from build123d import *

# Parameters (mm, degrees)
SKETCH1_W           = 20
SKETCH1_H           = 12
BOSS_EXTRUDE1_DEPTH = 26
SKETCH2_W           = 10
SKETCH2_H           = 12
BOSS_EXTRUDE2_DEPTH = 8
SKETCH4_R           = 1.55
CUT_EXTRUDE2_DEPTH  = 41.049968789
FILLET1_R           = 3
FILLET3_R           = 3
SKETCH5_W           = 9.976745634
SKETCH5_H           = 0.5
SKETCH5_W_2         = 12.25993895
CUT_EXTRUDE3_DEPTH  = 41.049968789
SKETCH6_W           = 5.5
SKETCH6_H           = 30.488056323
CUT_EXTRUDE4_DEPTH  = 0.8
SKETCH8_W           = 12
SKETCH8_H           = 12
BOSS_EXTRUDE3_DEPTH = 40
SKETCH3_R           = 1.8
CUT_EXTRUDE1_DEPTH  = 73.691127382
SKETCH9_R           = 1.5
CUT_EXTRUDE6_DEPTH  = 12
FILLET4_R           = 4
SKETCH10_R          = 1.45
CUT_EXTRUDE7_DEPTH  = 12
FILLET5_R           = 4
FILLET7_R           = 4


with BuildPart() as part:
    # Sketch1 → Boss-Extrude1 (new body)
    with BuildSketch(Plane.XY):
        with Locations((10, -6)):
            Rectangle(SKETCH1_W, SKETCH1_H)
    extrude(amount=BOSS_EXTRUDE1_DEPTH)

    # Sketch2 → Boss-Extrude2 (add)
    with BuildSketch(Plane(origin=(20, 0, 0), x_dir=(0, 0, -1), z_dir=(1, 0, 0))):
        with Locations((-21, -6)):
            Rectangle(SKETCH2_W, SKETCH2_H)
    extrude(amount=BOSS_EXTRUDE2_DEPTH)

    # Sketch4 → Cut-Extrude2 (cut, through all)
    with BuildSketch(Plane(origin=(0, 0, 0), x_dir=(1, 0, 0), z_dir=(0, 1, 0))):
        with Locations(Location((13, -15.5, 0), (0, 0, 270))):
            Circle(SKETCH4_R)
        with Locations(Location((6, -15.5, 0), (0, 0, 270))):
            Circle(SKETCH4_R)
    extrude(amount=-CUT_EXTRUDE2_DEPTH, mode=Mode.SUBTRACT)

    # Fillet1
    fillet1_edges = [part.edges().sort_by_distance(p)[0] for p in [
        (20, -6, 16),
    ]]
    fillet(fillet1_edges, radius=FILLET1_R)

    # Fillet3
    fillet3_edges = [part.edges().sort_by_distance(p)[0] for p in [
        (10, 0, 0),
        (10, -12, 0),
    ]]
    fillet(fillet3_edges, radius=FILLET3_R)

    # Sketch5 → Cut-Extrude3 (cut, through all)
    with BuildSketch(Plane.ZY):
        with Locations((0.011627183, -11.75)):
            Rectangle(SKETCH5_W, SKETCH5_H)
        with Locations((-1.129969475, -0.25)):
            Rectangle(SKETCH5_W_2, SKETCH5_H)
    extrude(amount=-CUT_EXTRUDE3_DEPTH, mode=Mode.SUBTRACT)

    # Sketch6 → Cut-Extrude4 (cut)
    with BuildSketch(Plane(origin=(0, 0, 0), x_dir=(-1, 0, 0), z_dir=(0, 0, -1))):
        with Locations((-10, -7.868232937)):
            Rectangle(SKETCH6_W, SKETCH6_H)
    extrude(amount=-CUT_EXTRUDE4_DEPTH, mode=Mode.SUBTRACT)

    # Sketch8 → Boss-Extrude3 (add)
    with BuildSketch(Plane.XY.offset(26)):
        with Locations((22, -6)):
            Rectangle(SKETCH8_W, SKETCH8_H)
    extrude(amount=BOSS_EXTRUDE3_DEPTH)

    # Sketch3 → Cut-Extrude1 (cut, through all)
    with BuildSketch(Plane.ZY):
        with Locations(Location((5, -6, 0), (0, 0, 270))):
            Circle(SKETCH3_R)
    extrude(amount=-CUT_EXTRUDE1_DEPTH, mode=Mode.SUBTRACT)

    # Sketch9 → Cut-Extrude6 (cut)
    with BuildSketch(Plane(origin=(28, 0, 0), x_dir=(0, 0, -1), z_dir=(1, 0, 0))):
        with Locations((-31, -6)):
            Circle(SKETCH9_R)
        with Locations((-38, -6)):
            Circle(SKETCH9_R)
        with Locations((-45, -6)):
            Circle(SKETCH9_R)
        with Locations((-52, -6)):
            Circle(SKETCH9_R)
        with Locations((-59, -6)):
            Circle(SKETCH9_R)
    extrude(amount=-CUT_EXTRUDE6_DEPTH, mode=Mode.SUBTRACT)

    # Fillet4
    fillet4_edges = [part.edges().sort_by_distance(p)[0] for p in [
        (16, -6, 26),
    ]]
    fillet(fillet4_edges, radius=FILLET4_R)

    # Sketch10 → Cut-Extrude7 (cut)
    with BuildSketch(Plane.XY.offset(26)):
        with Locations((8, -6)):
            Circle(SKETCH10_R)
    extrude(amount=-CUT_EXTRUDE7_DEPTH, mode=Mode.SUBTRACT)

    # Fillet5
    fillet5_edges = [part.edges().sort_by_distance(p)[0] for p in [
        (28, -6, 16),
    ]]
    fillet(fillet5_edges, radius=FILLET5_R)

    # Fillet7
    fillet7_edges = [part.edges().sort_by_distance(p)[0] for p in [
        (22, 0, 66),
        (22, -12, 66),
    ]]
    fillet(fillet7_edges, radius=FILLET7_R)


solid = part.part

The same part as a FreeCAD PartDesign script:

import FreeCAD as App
import Part
import Sketcher

V = App.Vector
Q = App.Units.Quantity


def edges_at(feature, points):
    """Names of the edges that pass closest to the given points."""
    edges = feature.Shape.Edges
    near = lambda p: min(range(len(edges)), key=lambda i: edges[i].distToShape(Part.Vertex(*p))[0])
    return sorted({f"Edge{near(p) + 1}" for p in points})


def add_polygon(sketch, points):
    """Adds a closed chain of lines whose ends are joined by coincident constraints."""
    first, n = sketch.GeometryCount, len(points)
    for a, b in zip(points, points[1:] + points[:1]):
        sketch.addGeometry(Part.LineSegment(App.Vector(*a, 0), App.Vector(*b, 0)), False)
    for i in range(n):
        sketch.addConstraint(Sketcher.Constraint("Coincident", first + i, 2, first + (i + 1) % n, 1))

doc = App.newDocument("Part")
body = doc.addObject("PartDesign::Body", "Body")

sketch1 = body.newObject("Sketcher::SketchObject", "Sketch")
sketch1.AttachmentSupport = (doc.getObject("XY_Plane"), [""])
sketch1.MapMode = "FlatFace"
add_polygon(sketch1, [(0, 0), (0, -12), (20, -12), (20, 0)])
sketch1.addConstraint(Sketcher.Constraint("Vertical", 0))
sketch1.addConstraint(Sketcher.Constraint("Horizontal", 1))
sketch1.addConstraint(Sketcher.Constraint("Vertical", 2))
sketch1.addConstraint(Sketcher.Constraint("Horizontal", 3))
sketch1.addConstraint(Sketcher.Constraint("Coincident", 3, 2, -1, 1))
sketch1.addConstraint(Sketcher.Constraint("DistanceX", 1, 1, 1, 2, Q("20 mm")))
sketch1.addConstraint(Sketcher.Constraint("DistanceY", 0, 2, 0, 1, Q("12 mm")))
pad1 = body.newObject("PartDesign::Pad", "Pad")
pad1.Profile = sketch1
pad1.Length = 26

sketch2 = body.newObject("Sketcher::SketchObject", "Sketch001")
sketch2.AttachmentSupport = (doc.getObject("YZ_Plane"), [""])
sketch2.MapMode = "FlatFace"
sketch2.AttachmentOffset = App.Placement(V(0, 0, 20), App.Rotation())
add_polygon(sketch2, [(0, 26), (-12, 26), (-12, 16), (0, 16)])
sketch2.addConstraint(Sketcher.Constraint("Horizontal", 0))
sketch2.addConstraint(Sketcher.Constraint("Vertical", 1))
sketch2.addConstraint(Sketcher.Constraint("Horizontal", 2))
sketch2.addConstraint(Sketcher.Constraint("Vertical", 3))
sketch2.addConstraint(Sketcher.Constraint("PointOnObject", 2, 2, -2))
sketch2.addConstraint(Sketcher.Constraint("DistanceX", 0, 2, 0, 1, Q("12 mm")))
sketch2.addConstraint(Sketcher.Constraint("DistanceY", 1, 2, 1, 1, Q("10 mm")))
sketch2.addConstraint(Sketcher.Constraint("DistanceY", -1, 1, 0, 2, Q("26 mm")))
pad2 = body.newObject("PartDesign::Pad", "Pad001")
pad2.Profile = sketch2
pad2.Length = 8

sketch3 = body.newObject("Sketcher::SketchObject", "Sketch002")
sketch3.AttachmentSupport = (doc.getObject("XZ_Plane"), [""])
sketch3.MapMode = "FlatFace"
sketch3.addGeometry(Part.Circle(V(13, 15.5, 0), V(0, 0, 1), 1.55), False)
sketch3.addGeometry(Part.Circle(V(6, 15.5, 0), V(0, 0, 1), 1.55), False)
sketch3.addConstraint(Sketcher.Constraint("Equal", 0, 1))
sketch3.addConstraint(Sketcher.Constraint("Horizontal", 0, 3, 1, 3))
sketch3.addConstraint(Sketcher.Constraint("Diameter", 0, Q("3.1 mm")))
sketch3.addConstraint(Sketcher.Constraint("DistanceX", -1, 1, 0, 3, Q("13 mm")))
sketch3.addConstraint(Sketcher.Constraint("DistanceX", -1, 1, 1, 3, Q("6 mm")))
sketch3.addConstraint(Sketcher.Constraint("DistanceY", -1, 1, 0, 3, Q("15.5 mm")))
pocket1 = body.newObject("PartDesign::Pocket", "Pocket")
pocket1.Profile = sketch3
pocket1.Type = "ThroughAll"
pocket1.Reversed = True
doc.recompute()

fillet = body.newObject("PartDesign::Fillet", "Fillet")
fillet.Base = (pocket1, edges_at(pocket1, [(20, -6, 16)]))
fillet.Radius = 3
doc.recompute()

fillet2 = body.newObject("PartDesign::Fillet", "Fillet001")
fillet2.Base = (fillet, edges_at(fillet, [(10, 0, 0), (10, -12, 0)]))
fillet2.Radius = 3

sketch4 = body.newObject("Sketcher::SketchObject", "Sketch003")
sketch4.AttachmentSupport = (doc.getObject("YZ_Plane"), [""])
sketch4.MapMode = "FlatFace"
add_polygon(sketch4, [(-11.5, -4.976746), (-12, -4.976746), (-12, 5), (-11.5, 5)])
add_polygon(sketch4, [(0, -7.259939), (-0.5, -7.259939), (-0.5, 5), (0, 5)])
sketch4.addConstraint(Sketcher.Constraint("Horizontal", 0))
sketch4.addConstraint(Sketcher.Constraint("Vertical", 1))
sketch4.addConstraint(Sketcher.Constraint("Horizontal", 2))
sketch4.addConstraint(Sketcher.Constraint("Vertical", 3))
sketch4.addConstraint(Sketcher.Constraint("Horizontal", 4))
sketch4.addConstraint(Sketcher.Constraint("Vertical", 5))
sketch4.addConstraint(Sketcher.Constraint("Horizontal", 6))
sketch4.addConstraint(Sketcher.Constraint("Vertical", 7))
sketch4.addConstraint(Sketcher.Constraint("PointOnObject", 6, 2, -2))
sketch4.addConstraint(Sketcher.Constraint("Horizontal", 2, 2, 5, 2))
sketch4.addConstraint(Sketcher.Constraint("Equal", 2, 4))
sketch4.addConstraint(Sketcher.Constraint("DistanceX", 0, 2, 0, 1, Q("0.5 mm")))
sketch4.addConstraint(Sketcher.Constraint("DistanceX", 0, 2, -1, 1, Q("12 mm")))
sketch4.addConstraint(Sketcher.Constraint("DistanceY", -1, 1, 1, 2, Q("5 mm")))
sketch4.addConstraint(Sketcher.Constraint("DistanceY", 5, 1, 5, 2, Q("12.259939 mm")))
sketch4.addConstraint(Sketcher.Constraint("DistanceY", 1, 1, 1, 2, Q("9.976746 mm")))
pocket2 = body.newObject("PartDesign::Pocket", "Pocket001")
pocket2.Profile = sketch4
pocket2.Type = "ThroughAll"
pocket2.Reversed = True

sketch5 = body.newObject("Sketcher::SketchObject", "Sketch004")
sketch5.AttachmentSupport = (doc.getObject("XY_Plane"), [""])
sketch5.MapMode = "FlatFace"
add_polygon(sketch5, [(12.75, 7.375795), (12.75, -23.112261), (7.25, -23.112261), (7.25, 7.375795)])
sketch5.addConstraint(Sketcher.Constraint("Vertical", 0))
sketch5.addConstraint(Sketcher.Constraint("Horizontal", 1))
sketch5.addConstraint(Sketcher.Constraint("Vertical", 2))
sketch5.addConstraint(Sketcher.Constraint("Horizontal", 3))
sketch5.addConstraint(Sketcher.Constraint("DistanceX", 1, 2, 1, 1, Q("5.5 mm")))
sketch5.addConstraint(Sketcher.Constraint("DistanceX", -1, 1, 0, 2, Q("12.75 mm")))
sketch5.addConstraint(Sketcher.Constraint("DistanceY", 0, 2, 0, 1, Q("30.488056 mm")))
sketch5.addConstraint(Sketcher.Constraint("DistanceY", 0, 2, -1, 1, Q("23.112261 mm")))
pocket3 = body.newObject("PartDesign::Pocket", "Pocket002")
pocket3.Profile = sketch5
pocket3.Length = 0.8
pocket3.Reversed = True

sketch6 = body.newObject("Sketcher::SketchObject", "Sketch005")
sketch6.AttachmentSupport = (doc.getObject("XY_Plane"), [""])
sketch6.MapMode = "FlatFace"
sketch6.AttachmentOffset = App.Placement(V(0, 0, 26), App.Rotation())
add_polygon(sketch6, [(16, 0), (16, -12), (28, -12), (28, 0)])
sketch6.addConstraint(Sketcher.Constraint("Vertical", 0))
sketch6.addConstraint(Sketcher.Constraint("Horizontal", 1))
sketch6.addConstraint(Sketcher.Constraint("Vertical", 2))
sketch6.addConstraint(Sketcher.Constraint("Horizontal", 3))
sketch6.addConstraint(Sketcher.Constraint("PointOnObject", 2, 2, -1))
sketch6.addConstraint(Sketcher.Constraint("Equal", 3, 0))
sketch6.addConstraint(Sketcher.Constraint("DistanceX", 1, 1, 1, 2, Q("12 mm")))
sketch6.addConstraint(Sketcher.Constraint("DistanceX", -1, 1, 0, 2, Q("16 mm")))
pad3 = body.newObject("PartDesign::Pad", "Pad002")
pad3.Profile = sketch6
pad3.Length = 40

sketch7 = body.newObject("Sketcher::SketchObject", "Sketch006")
sketch7.AttachmentSupport = (doc.getObject("YZ_Plane"), [""])
sketch7.MapMode = "FlatFace"
sketch7.addGeometry(Part.Circle(V(-6, 5, 0), V(0, 0, 1), 1.8), False)
sketch7.addConstraint(Sketcher.Constraint("Diameter", 0, Q("3.6 mm")))
sketch7.addConstraint(Sketcher.Constraint("DistanceX", 0, 3, -1, 1, Q("6 mm")))
sketch7.addConstraint(Sketcher.Constraint("DistanceY", -1, 1, 0, 3, Q("5 mm")))
pocket4 = body.newObject("PartDesign::Pocket", "Pocket003")
pocket4.Profile = sketch7
pocket4.Type = "ThroughAll"
pocket4.Reversed = True

sketch8 = body.newObject("Sketcher::SketchObject", "Sketch007")
sketch8.AttachmentSupport = (doc.getObject("YZ_Plane"), [""])
sketch8.MapMode = "FlatFace"
sketch8.AttachmentOffset = App.Placement(V(0, 0, 28), App.Rotation())
sketch8.addGeometry(Part.Circle(V(-6, 31, 0), V(0, 0, 1), 1.5), False)
sketch8.addGeometry(Part.Circle(V(-6, 38, 0), V(0, 0, 1), 1.5), False)
sketch8.addGeometry(Part.Circle(V(-6, 45, 0), V(0, 0, 1), 1.5), False)
sketch8.addGeometry(Part.Circle(V(-6, 52, 0), V(0, 0, 1), 1.5), False)
sketch8.addGeometry(Part.Circle(V(-6, 59, 0), V(0, 0, 1), 1.5), False)
sketch8.addConstraint(Sketcher.Constraint("Equal", 0, 1))
sketch8.addConstraint(Sketcher.Constraint("Equal", 1, 2))
sketch8.addConstraint(Sketcher.Constraint("Equal", 2, 3))
sketch8.addConstraint(Sketcher.Constraint("Equal", 3, 4))
sketch8.addConstraint(Sketcher.Constraint("Vertical", 0, 3, 1, 3))
sketch8.addConstraint(Sketcher.Constraint("Vertical", 1, 3, 2, 3))
sketch8.addConstraint(Sketcher.Constraint("Vertical", 2, 3, 3, 3))
sketch8.addConstraint(Sketcher.Constraint("Vertical", 3, 3, 4, 3))
sketch8.addConstraint(Sketcher.Constraint("Diameter", 0, Q("3 mm")))
sketch8.addConstraint(Sketcher.Constraint("DistanceX", 0, 3, -1, 1, Q("6 mm")))
sketch8.addConstraint(Sketcher.Constraint("DistanceY", -1, 1, 0, 3, Q("31 mm")))
sketch8.addConstraint(Sketcher.Constraint("DistanceY", -1, 1, 1, 3, Q("38 mm")))
sketch8.addConstraint(Sketcher.Constraint("DistanceY", -1, 1, 2, 3, Q("45 mm")))
sketch8.addConstraint(Sketcher.Constraint("DistanceY", -1, 1, 3, 3, Q("52 mm")))
sketch8.addConstraint(Sketcher.Constraint("DistanceY", -1, 1, 4, 3, Q("59 mm")))
pocket5 = body.newObject("PartDesign::Pocket", "Pocket004")
pocket5.Profile = sketch8
pocket5.Length = 12
doc.recompute()

fillet3 = body.newObject("PartDesign::Fillet", "Fillet002")
fillet3.Base = (pocket5, edges_at(pocket5, [(16, -6, 26)]))
fillet3.Radius = 4

sketch9 = body.newObject("Sketcher::SketchObject", "Sketch008")
sketch9.AttachmentSupport = (doc.getObject("XY_Plane"), [""])
sketch9.MapMode = "FlatFace"
sketch9.AttachmentOffset = App.Placement(V(0, 0, 26), App.Rotation())
sketch9.addGeometry(Part.Circle(V(8, -6, 0), V(0, 0, 1), 1.45), False)
sketch9.addConstraint(Sketcher.Constraint("Diameter", 0, Q("2.9 mm")))
sketch9.addConstraint(Sketcher.Constraint("DistanceX", -1, 1, 0, 3, Q("8 mm")))
sketch9.addConstraint(Sketcher.Constraint("DistanceY", 0, 3, -1, 1, Q("6 mm")))
pocket6 = body.newObject("PartDesign::Pocket", "Pocket005")
pocket6.Profile = sketch9
pocket6.Length = 12
doc.recompute()

fillet4 = body.newObject("PartDesign::Fillet", "Fillet003")
fillet4.Base = (pocket6, edges_at(pocket6, [(28, -6, 16)]))
fillet4.Radius = 4
doc.recompute()

fillet5 = body.newObject("PartDesign::Fillet", "Fillet004")
fillet5.Base = (fillet4, edges_at(fillet4, [(22, 0, 66), (22, -12, 66)]))
fillet5.Radius = 4

doc.recompute()
